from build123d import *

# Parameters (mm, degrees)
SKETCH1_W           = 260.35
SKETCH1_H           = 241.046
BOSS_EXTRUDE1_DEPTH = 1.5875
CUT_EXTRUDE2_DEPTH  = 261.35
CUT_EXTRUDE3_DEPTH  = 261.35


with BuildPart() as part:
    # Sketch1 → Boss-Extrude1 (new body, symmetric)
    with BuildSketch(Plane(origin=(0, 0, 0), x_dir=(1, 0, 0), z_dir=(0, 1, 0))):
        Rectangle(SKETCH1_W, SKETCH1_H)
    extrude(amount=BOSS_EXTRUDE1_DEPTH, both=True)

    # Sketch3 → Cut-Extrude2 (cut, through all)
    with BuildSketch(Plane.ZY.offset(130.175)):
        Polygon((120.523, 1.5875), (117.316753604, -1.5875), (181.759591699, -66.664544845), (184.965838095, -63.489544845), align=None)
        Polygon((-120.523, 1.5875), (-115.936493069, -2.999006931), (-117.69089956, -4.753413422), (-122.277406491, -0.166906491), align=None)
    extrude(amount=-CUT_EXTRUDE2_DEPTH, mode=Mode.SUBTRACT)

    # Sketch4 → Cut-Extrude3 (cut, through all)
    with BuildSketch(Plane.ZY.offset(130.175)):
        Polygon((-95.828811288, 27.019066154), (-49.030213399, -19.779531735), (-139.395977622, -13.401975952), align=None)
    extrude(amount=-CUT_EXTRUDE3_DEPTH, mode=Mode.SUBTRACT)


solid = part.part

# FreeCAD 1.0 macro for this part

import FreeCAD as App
import Part
import Sketcher
Q = App.Units.Quantity

doc = App.newDocument("Part")
body = doc.addObject("PartDesign::Body", "Body")

# Sketch on XZ plane
sketch1 = body.newObject("Sketcher::SketchObject", "Sketch")
sketch1.AttachmentSupport = (doc.getObject("XZ_Plane"), [""])
sketch1.MapMode = "FlatFace"
sketch1.addGeometry(Part.LineSegment(App.Vector(-130, -121, 0), App.Vector(-130, 121, 0)), False)
sketch1.addGeometry(Part.LineSegment(App.Vector(-130, 121, 0), App.Vector(130, 121, 0)), False)
sketch1.addGeometry(Part.LineSegment(App.Vector(130, 121, 0), App.Vector(130, -121, 0)), False)
sketch1.addGeometry(Part.LineSegment(App.Vector(130, -121, 0), App.Vector(-130, -121, 0)), False)
sketch1.addConstraint(Sketcher.Constraint("Coincident", 0, 2, 1, 1))
sketch1.addConstraint(Sketcher.Constraint("Coincident", 1, 2, 2, 1))
sketch1.addConstraint(Sketcher.Constraint("Coincident", 2, 2, 3, 1))
sketch1.addConstraint(Sketcher.Constraint("Coincident", 3, 2, 0, 1))
sketch1.addConstraint(Sketcher.Constraint("Vertical", 0))
sketch1.addConstraint(Sketcher.Constraint("Horizontal", 1))
sketch1.addConstraint(Sketcher.Constraint("Vertical", 2))
sketch1.addConstraint(Sketcher.Constraint("Horizontal", 3))
sketch1.addConstraint(Sketcher.Constraint("Symmetric", 0, 2, 2, 2, -1, 1))
sketch1.addConstraint(Sketcher.Constraint("DistanceX", 1, 1, 1, 2, Q("10.25 in")))
sketch1.addConstraint(Sketcher.Constraint("DistanceY", 0, 1, 0, 2, Q("9.49 in")))
pad1 = body.newObject("PartDesign::Pad", "Pad")
pad1.Profile = sketch1
pad1.Length = Q("0.125 in")
pad1.Midplane = True

# Sketch on YZ plane
sketch2 = body.newObject("Sketcher::SketchObject", "Sketch001")
sketch2.AttachmentSupport = (doc.getObject("YZ_Plane"), [""])
sketch2.MapMode = "FlatFace"
sketch2.AttachmentOffset = App.Placement(App.Vector(0, 0, -5.125 * 25.4), App.Rotation())
sketch2.addGeometry(Part.LineSegment(App.Vector(1.6, 120.5, 0), App.Vector(-1.6, 117.3, 0)), False)
sketch2.addGeometry(Part.LineSegment(App.Vector(-1.6, 117.3, 0), App.Vector(-66.7, 181.8, 0)), False)
sketch2.addGeometry(Part.LineSegment(App.Vector(-66.7, 181.8, 0), App.Vector(-63.5, 185, 0)), False)
sketch2.addGeometry(Part.LineSegment(App.Vector(-63.5, 185, 0), App.Vector(1.6, 120.5, 0)), False)
sketch2.addGeometry(Part.LineSegment(App.Vector(-3, -115.9, 0), App.Vector(1.6, -120.5, 0)), False)
sketch2.addGeometry(Part.LineSegment(App.Vector(1.6, -120.5, 0), App.Vector(-0.2, -122.3, 0)), False)
sketch2.addGeometry(Part.LineSegment(App.Vector(-0.2, -122.3, 0), App.Vector(-4.8, -117.7, 0)), False)
sketch2.addGeometry(Part.LineSegment(App.Vector(-4.8, -117.7, 0), App.Vector(-3, -115.9, 0)), False)
sketch2.addConstraint(Sketcher.Constraint("Coincident", 0, 2, 1, 1))
sketch2.addConstraint(Sketcher.Constraint("Coincident", 1, 2, 2, 1))
sketch2.addConstraint(Sketcher.Constraint("Coincident", 2, 2, 3, 1))
sketch2.addConstraint(Sketcher.Constraint("Coincident", 3, 2, 0, 1))
sketch2.addConstraint(Sketcher.Constraint("Coincident", 4, 2, 5, 1))
sketch2.addConstraint(Sketcher.Constraint("Coincident", 5, 2, 6, 1))
sketch2.addConstraint(Sketcher.Constraint("Coincident", 6, 2, 7, 1))
sketch2.addConstraint(Sketcher.Constraint("Coincident", 7, 2, 4, 1))
sketch2.addConstraint(Sketcher.Constraint("Symmetric", 3, 2, 4, 2, -1))
sketch2.addConstraint(Sketcher.Constraint("Perpendicular", 0, 1))
sketch2.addConstraint(Sketcher.Constraint("Perpendicular", 1, 2))
sketch2.addConstraint(Sketcher.Constraint("Perpendicular", 2, 3))
sketch2.addConstraint(Sketcher.Constraint("Perpendicular", 4, 5))
sketch2.addConstraint(Sketcher.Constraint("Perpendicular", 5, 6))
sketch2.addConstraint(Sketcher.Constraint("Perpendicular", 6, 7))
sketch2.addConstraint(Sketcher.Constraint("Angle", 4, Q("-45 deg")))
sketch2.addConstraint(Sketcher.Constraint("DistanceY", 4, 2, 3, 2, Q("9.49 in")))
sketch2.addConstraint(Sketcher.Constraint("DistanceX", 0, 2, -1, 1, Q("0.0625 in")))
sketch2.addConstraint(Sketcher.Constraint("DistanceX", -1, 1, 3, 2, Q("0.0625 in")))
sketch2.addConstraint(Sketcher.Constraint("DistanceY", 6, 2, -1, 1, Q("4.6335 in")))
sketch2.addConstraint(Sketcher.Constraint("Distance", 4, 6.4863))
sketch2.addConstraint(Sketcher.Constraint("DistanceY", 5, 2, 1, 2, 304.036998))
sketch2.addConstraint(Sketcher.Constraint("DistanceY", -1, 1, 2, 2, 184.965838))
pocket1 = body.newObject("PartDesign::Pocket", "Pocket")
pocket1.Profile = sketch2
pocket1.Type = "ThroughAll"
pocket1.Reversed = True

# Sketch on YZ plane
sketch3 = body.newObject("Sketcher::SketchObject", "Sketch002")
sketch3.AttachmentSupport = (doc.getObject("YZ_Plane"), [""])
sketch3.MapMode = "FlatFace"
sketch3.AttachmentOffset = App.Placement(App.Vector(0, 0, -5.125 * 25.4), App.Rotation())
sketch3.addGeometry(Part.LineSegment(App.Vector(-20, -49, 0), App.Vector(27, -96, 0)), False)
sketch3.addGeometry(Part.LineSegment(App.Vector(27, -96, 0), App.Vector(-13, -139, 0)), False)
sketch3.addGeometry(Part.LineSegment(App.Vector(-13, -139, 0), App.Vector(-20, -49, 0)), False)
sketch3.addConstraint(Sketcher.Constraint("Coincident", 0, 2, 1, 1))
sketch3.addConstraint(Sketcher.Constraint("Coincident", 1, 2, 2, 1))
sketch3.addConstraint(Sketcher.Constraint("Coincident", 2, 2, 0, 1))
sketch3.addConstraint(Sketcher.Constraint("Angle", 0, Q("-45 deg")))
sketch3.addConstraint(Sketcher.Constraint("Distance", 0, 66.183212))
sketch3.addConstraint(Sketcher.Constraint("DistanceY", 0, 2, -1, 1, 95.828811))
sketch3.addConstraint(Sketcher.Constraint("DistanceX", 2, 2, -1, 1, 19.779532))
sketch3.addConstraint(Sketcher.Constraint("Distance", 1, 59.430284))
sketch3.addConstraint(Sketcher.Constraint("Distance", 2, 90.590532))
pocket2 = body.newObject("PartDesign::Pocket", "Pocket001")
pocket2.Profile = sketch3
pocket2.Type = "ThroughAll"
pocket2.Reversed = True

doc.recompute()
